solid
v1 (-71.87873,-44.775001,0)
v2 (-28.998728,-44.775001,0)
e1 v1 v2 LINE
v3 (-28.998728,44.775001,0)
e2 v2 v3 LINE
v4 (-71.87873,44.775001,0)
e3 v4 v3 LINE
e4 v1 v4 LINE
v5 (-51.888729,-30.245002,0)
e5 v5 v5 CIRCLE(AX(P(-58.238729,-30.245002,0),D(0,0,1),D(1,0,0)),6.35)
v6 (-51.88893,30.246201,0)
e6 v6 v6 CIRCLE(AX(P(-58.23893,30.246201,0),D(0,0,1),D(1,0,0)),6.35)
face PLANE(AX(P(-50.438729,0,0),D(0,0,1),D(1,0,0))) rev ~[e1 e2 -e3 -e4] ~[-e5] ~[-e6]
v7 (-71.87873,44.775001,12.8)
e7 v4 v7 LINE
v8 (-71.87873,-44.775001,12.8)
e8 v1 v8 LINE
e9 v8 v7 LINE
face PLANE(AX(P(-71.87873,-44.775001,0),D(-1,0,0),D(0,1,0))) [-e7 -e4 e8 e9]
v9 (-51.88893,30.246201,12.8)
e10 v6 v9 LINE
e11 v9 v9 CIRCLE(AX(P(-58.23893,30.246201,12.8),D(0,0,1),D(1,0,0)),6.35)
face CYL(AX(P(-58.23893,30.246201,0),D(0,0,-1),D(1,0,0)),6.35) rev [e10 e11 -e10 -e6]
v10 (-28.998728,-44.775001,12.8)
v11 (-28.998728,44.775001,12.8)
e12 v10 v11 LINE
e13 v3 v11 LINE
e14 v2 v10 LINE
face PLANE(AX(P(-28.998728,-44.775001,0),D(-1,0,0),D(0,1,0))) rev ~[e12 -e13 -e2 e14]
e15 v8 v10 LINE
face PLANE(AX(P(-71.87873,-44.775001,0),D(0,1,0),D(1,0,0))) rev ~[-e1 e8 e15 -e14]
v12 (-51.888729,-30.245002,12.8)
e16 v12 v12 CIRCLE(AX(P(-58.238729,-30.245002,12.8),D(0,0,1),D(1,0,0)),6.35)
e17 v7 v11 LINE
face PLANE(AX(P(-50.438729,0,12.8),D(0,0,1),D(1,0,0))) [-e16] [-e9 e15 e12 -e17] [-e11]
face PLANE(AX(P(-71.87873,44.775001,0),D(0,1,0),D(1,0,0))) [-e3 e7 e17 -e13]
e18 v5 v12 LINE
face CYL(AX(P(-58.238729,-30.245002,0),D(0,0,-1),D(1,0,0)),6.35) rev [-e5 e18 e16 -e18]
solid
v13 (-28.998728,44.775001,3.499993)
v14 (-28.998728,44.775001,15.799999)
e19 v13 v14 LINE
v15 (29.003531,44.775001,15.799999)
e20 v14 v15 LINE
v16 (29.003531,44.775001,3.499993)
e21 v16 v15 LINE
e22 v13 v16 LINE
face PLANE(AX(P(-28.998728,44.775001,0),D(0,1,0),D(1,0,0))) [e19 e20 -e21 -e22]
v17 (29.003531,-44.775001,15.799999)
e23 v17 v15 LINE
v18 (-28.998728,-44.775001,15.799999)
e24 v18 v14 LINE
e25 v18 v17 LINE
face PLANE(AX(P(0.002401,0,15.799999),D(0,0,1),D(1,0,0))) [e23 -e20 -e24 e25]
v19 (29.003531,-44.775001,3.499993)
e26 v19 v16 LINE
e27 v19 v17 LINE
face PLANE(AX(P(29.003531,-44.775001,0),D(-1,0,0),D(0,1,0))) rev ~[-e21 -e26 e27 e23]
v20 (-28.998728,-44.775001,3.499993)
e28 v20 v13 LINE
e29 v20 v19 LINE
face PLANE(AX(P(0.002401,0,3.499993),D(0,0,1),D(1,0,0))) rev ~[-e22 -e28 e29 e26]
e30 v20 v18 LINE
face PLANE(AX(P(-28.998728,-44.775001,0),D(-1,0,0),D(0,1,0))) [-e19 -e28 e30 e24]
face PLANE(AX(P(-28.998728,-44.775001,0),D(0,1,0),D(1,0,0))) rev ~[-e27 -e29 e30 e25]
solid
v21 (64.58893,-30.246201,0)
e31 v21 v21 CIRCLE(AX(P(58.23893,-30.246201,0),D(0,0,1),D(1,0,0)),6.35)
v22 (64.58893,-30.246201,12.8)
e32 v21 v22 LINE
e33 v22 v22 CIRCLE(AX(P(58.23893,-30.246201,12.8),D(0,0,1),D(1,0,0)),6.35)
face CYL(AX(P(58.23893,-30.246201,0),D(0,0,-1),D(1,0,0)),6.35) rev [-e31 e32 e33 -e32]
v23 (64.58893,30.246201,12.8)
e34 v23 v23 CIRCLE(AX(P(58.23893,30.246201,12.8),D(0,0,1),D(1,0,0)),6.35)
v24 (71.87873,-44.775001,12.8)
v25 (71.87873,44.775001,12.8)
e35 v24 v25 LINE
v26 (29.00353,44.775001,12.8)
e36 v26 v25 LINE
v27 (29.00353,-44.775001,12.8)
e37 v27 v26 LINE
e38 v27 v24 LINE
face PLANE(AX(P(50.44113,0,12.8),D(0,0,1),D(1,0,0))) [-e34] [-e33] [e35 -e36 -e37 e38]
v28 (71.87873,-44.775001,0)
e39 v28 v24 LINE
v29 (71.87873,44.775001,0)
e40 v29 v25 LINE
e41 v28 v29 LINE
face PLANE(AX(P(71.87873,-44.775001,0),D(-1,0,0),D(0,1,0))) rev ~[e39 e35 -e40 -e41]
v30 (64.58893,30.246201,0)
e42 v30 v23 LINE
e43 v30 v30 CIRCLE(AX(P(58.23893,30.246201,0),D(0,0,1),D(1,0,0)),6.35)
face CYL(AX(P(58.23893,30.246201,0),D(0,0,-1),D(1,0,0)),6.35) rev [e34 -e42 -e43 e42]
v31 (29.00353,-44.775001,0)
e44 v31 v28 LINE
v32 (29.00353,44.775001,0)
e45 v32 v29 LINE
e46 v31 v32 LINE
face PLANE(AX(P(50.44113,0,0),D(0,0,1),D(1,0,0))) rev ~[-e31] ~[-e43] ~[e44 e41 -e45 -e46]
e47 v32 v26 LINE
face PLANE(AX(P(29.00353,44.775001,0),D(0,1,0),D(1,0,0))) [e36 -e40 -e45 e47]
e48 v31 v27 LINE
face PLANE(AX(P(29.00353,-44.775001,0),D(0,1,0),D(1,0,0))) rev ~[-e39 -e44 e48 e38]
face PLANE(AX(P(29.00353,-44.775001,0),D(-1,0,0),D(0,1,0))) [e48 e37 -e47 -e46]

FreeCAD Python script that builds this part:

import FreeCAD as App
import Part
import Sketcher

V = App.Vector
Q = App.Units.Quantity

doc = App.newDocument("Part")
params = doc.addObject("Spreadsheet::Sheet", "Params")
for row, (alias, value) in enumerate([
    ("sketch1_diameter", "12.7 mm"),
    ("sketch1_width", "42.880001 mm"),
    ("pad1_length", "12.8 mm"),
    ("pad2_length", "15.799999 mm"),
    ("pocket1_length", "3.499993 mm"),
], start=1):
    params.set(f"A{row}", alias)
    params.set(f"B{row}", "=" + value)
    params.setAlias(f"B{row}", alias)

body = doc.addObject("PartDesign::Body", "Body")
body.AllowCompound = True

# Sketch on XY plane
sketch1 = doc.addObject("Sketcher::SketchObject", "Sketch")
body.addObject(sketch1)
sketch1.AttachmentSupport = (doc.XY_Plane, [""])
sketch1.MapMode = "FlatFace"
sketch1.addGeometry([
    Part.LineSegment(V(-71.87873, 44.775001, 0), V(-71.87873, -44.775001, 0)),  # 0
    Part.LineSegment(V(-71.87873, -44.775001, 0), V(-28.998728, -44.775001, 0)),  # 1
    Part.LineSegment(V(-28.998728, -44.775001, 0), V(-28.998728, 44.775001, 0)),  # 2
    Part.LineSegment(V(-28.998728, 44.775001, 0), V(-71.87873, 44.775001, 0)),  # 3
    Part.Circle(V(-58.238729, -30.245002, 0), V(0, 0, 1), 6.35),  # 4
    Part.Circle(V(-58.23893, 30.246201, 0), V(0, 0, 1), 6.35),  # 5
    Part.LineSegment(V(29.00353, 44.775001, 0), V(29.00353, -44.775001, 0)),  # 6
    Part.LineSegment(V(29.00353, -44.775001, 0), V(71.87873, -44.775001, 0)),  # 7
    Part.LineSegment(V(71.87873, -44.775001, 0), V(71.87873, 44.775001, 0)),  # 8
    Part.LineSegment(V(71.87873, 44.775001, 0), V(29.00353, 44.775001, 0)),  # 9
    Part.Circle(V(58.23893, -30.246201, 0), V(0, 0, 1), 6.35),  # 10
    Part.Circle(V(58.23893, 30.246201, 0), V(0, 0, 1), 6.35),  # 11
], False)
sketch1.addConstraint([
    Sketcher.Constraint("Coincident", 0, 2, 1, 1),
    Sketcher.Constraint("Coincident", 1, 2, 2, 1),
    Sketcher.Constraint("Coincident", 2, 2, 3, 1),
    Sketcher.Constraint("Coincident", 3, 2, 0, 1),
    Sketcher.Constraint("Coincident", 6, 2, 7, 1),
    Sketcher.Constraint("Coincident", 7, 2, 8, 1),
    Sketcher.Constraint("Coincident", 8, 2, 9, 1),
    Sketcher.Constraint("Coincident", 9, 2, 6, 1),
    Sketcher.Constraint("Vertical", 0),
    Sketcher.Constraint("Horizontal", 1),
    Sketcher.Constraint("Vertical", 2),
    Sketcher.Constraint("Horizontal", 3),
    Sketcher.Constraint("Vertical", 6),
    Sketcher.Constraint("Horizontal", 7),
    Sketcher.Constraint("Vertical", 8),
    Sketcher.Constraint("Horizontal", 9),
    Sketcher.Constraint("Equal", 4, 5),
    Sketcher.Constraint("Equal", 5, 10),
    Sketcher.Constraint("Equal", 10, 11),
    Sketcher.Constraint("Symmetric", 5, 3, 10, 3, -1, 1),
    Sketcher.Constraint("Symmetric", 3, 2, 7, 2, -1, 1),
    Sketcher.Constraint("Symmetric", 5, 3, 11, 3, -2),
    Sketcher.Constraint("Horizontal", 1, 2, 6, 2),
    Sketcher.Constraint("Horizontal", 3, 2, 8, 2),
    Sketcher.Constraint("Diameter", 4, Q("12.7 mm")),
    Sketcher.Constraint("DistanceX", 1, 1, 1, 2, Q("42.880001 mm")),
    Sketcher.Constraint("DistanceX", 0, 2, 4, 3, Q("13.640001 mm")),
    Sketcher.Constraint("DistanceY", 0, 2, 4, 3, Q("14.529999 mm")),
    Sketcher.Constraint("DistanceX", 7, 1, 7, 2, Q("42.8752 mm")),
    Sketcher.Constraint("DistanceY", 4, 3, -1, 1, Q("30.245002 mm")),
    Sketcher.Constraint("DistanceY", -1, 1, 5, 3, Q("30.246201 mm")),
    Sketcher.Constraint("DistanceX", 5, 3, 4, 3, Q("0.000201 mm")),
    Sketcher.Constraint("DistanceX", 4, 3, -1, 1, Q("58.238729 mm")),
])
sketch1.setExpression("Constraints[24]", "Params.sketch1_diameter")
sketch1.setExpression("Constraints[25]", "Params.sketch1_width")
pad1 = doc.addObject("PartDesign::Pad", "Pad")
body.addObject(pad1)
pad1.Profile = sketch1
pad1.setExpression("Length", "Params.pad1_length")
body2 = doc.addObject("PartDesign::Body", "Body001")

# Sketch on XY plane
sketch2 = doc.addObject("Sketcher::SketchObject", "Sketch001")
body2.addObject(sketch2)
sketch2.AttachmentSupport = (doc.getObject("XY_Plane001"), [""])
sketch2.MapMode = "FlatFace"
sketch2.addGeometry([
    Part.LineSegment(V(-28.998728, 44.775001, 0), V(-28.998728, -44.775001, 0)),
    Part.LineSegment(V(-28.998728, -44.775001, 0), V(29.003531, -44.775001, 0)),
    Part.LineSegment(V(29.003531, -44.775001, 0), V(29.003531, 44.775001, 0)),
    Part.LineSegment(V(29.003531, 44.775001, 0), V(-28.998728, 44.775001, 0)),
], False)
sketch2.addConstraint([
    Sketcher.Constraint("Coincident", 0, 2, 1, 1),
    Sketcher.Constraint("Coincident", 1, 2, 2, 1),
    Sketcher.Constraint("Coincident", 2, 2, 3, 1),
    Sketcher.Constraint("Coincident", 3, 2, 0, 1),
    Sketcher.Constraint("Vertical", 0),
    Sketcher.Constraint("Horizontal", 1),
    Sketcher.Constraint("Vertical", 2),
    Sketcher.Constraint("Horizontal", 3),
    Sketcher.Constraint("DistanceY", 0, 2, -1, 1, Q("44.775001 mm")),
    Sketcher.Constraint("DistanceY", -1, 1, 2, 2, Q("44.775001 mm")),
    Sketcher.Constraint("DistanceX", 1, 1, 1, 2, Q("58.002259 mm")),
    Sketcher.Constraint("DistanceX", 0, 2, -1, 1, Q("28.998728 mm")),
])
pad2 = doc.addObject("PartDesign::Pad", "Pad001")
body2.addObject(pad2)
pad2.Profile = sketch2
pad2.setExpression("Length", "Params.pad2_length")

# Sketch on XY plane
sketch3 = doc.addObject("Sketcher::SketchObject", "Sketch002")
body2.addObject(sketch3)
sketch3.AttachmentSupport = (doc.getObject("XY_Plane001"), [""])
sketch3.MapMode = "FlatFace"
sketch3.addGeometry([
    Part.LineSegment(V(-28.998728, 44.775001, 0), V(-28.998728, -44.775001, 0)),
    Part.LineSegment(V(-28.998728, -44.775001, 0), V(29.003531, -44.775001, 0)),
    Part.LineSegment(V(29.003531, -44.775001, 0), V(29.003531, 44.775001, 0)),
    Part.LineSegment(V(29.003531, 44.775001, 0), V(-28.998728, 44.775001, 0)),
], False)
sketch3.addConstraint([
    Sketcher.Constraint("Coincident", 0, 2, 1, 1),
    Sketcher.Constraint("Coincident", 1, 2, 2, 1),
    Sketcher.Constraint("Coincident", 2, 2, 3, 1),
    Sketcher.Constraint("Coincident", 3, 2, 0, 1),
    Sketcher.Constraint("Vertical", 0),
    Sketcher.Constraint("Horizontal", 1),
    Sketcher.Constraint("Vertical", 2),
    Sketcher.Constraint("Horizontal", 3),
    Sketcher.Constraint("DistanceY", 0, 2, -1, 1, Q("44.775001 mm")),
    Sketcher.Constraint("DistanceY", -1, 1, 2, 2, Q("44.775001 mm")),
    Sketcher.Constraint("DistanceX", 1, 1, 1, 2, Q("58.002259 mm")),
    Sketcher.Constraint("DistanceX", 0, 2, -1, 1, Q("28.998728 mm")),
])
pocket1 = doc.addObject("PartDesign::Pocket", "Pocket")
body2.addObject(pocket1)
pocket1.Profile = sketch3
pocket1.setExpression("Length", "Params.pocket1_length")
pocket1.Reversed = True

doc.recompute()
